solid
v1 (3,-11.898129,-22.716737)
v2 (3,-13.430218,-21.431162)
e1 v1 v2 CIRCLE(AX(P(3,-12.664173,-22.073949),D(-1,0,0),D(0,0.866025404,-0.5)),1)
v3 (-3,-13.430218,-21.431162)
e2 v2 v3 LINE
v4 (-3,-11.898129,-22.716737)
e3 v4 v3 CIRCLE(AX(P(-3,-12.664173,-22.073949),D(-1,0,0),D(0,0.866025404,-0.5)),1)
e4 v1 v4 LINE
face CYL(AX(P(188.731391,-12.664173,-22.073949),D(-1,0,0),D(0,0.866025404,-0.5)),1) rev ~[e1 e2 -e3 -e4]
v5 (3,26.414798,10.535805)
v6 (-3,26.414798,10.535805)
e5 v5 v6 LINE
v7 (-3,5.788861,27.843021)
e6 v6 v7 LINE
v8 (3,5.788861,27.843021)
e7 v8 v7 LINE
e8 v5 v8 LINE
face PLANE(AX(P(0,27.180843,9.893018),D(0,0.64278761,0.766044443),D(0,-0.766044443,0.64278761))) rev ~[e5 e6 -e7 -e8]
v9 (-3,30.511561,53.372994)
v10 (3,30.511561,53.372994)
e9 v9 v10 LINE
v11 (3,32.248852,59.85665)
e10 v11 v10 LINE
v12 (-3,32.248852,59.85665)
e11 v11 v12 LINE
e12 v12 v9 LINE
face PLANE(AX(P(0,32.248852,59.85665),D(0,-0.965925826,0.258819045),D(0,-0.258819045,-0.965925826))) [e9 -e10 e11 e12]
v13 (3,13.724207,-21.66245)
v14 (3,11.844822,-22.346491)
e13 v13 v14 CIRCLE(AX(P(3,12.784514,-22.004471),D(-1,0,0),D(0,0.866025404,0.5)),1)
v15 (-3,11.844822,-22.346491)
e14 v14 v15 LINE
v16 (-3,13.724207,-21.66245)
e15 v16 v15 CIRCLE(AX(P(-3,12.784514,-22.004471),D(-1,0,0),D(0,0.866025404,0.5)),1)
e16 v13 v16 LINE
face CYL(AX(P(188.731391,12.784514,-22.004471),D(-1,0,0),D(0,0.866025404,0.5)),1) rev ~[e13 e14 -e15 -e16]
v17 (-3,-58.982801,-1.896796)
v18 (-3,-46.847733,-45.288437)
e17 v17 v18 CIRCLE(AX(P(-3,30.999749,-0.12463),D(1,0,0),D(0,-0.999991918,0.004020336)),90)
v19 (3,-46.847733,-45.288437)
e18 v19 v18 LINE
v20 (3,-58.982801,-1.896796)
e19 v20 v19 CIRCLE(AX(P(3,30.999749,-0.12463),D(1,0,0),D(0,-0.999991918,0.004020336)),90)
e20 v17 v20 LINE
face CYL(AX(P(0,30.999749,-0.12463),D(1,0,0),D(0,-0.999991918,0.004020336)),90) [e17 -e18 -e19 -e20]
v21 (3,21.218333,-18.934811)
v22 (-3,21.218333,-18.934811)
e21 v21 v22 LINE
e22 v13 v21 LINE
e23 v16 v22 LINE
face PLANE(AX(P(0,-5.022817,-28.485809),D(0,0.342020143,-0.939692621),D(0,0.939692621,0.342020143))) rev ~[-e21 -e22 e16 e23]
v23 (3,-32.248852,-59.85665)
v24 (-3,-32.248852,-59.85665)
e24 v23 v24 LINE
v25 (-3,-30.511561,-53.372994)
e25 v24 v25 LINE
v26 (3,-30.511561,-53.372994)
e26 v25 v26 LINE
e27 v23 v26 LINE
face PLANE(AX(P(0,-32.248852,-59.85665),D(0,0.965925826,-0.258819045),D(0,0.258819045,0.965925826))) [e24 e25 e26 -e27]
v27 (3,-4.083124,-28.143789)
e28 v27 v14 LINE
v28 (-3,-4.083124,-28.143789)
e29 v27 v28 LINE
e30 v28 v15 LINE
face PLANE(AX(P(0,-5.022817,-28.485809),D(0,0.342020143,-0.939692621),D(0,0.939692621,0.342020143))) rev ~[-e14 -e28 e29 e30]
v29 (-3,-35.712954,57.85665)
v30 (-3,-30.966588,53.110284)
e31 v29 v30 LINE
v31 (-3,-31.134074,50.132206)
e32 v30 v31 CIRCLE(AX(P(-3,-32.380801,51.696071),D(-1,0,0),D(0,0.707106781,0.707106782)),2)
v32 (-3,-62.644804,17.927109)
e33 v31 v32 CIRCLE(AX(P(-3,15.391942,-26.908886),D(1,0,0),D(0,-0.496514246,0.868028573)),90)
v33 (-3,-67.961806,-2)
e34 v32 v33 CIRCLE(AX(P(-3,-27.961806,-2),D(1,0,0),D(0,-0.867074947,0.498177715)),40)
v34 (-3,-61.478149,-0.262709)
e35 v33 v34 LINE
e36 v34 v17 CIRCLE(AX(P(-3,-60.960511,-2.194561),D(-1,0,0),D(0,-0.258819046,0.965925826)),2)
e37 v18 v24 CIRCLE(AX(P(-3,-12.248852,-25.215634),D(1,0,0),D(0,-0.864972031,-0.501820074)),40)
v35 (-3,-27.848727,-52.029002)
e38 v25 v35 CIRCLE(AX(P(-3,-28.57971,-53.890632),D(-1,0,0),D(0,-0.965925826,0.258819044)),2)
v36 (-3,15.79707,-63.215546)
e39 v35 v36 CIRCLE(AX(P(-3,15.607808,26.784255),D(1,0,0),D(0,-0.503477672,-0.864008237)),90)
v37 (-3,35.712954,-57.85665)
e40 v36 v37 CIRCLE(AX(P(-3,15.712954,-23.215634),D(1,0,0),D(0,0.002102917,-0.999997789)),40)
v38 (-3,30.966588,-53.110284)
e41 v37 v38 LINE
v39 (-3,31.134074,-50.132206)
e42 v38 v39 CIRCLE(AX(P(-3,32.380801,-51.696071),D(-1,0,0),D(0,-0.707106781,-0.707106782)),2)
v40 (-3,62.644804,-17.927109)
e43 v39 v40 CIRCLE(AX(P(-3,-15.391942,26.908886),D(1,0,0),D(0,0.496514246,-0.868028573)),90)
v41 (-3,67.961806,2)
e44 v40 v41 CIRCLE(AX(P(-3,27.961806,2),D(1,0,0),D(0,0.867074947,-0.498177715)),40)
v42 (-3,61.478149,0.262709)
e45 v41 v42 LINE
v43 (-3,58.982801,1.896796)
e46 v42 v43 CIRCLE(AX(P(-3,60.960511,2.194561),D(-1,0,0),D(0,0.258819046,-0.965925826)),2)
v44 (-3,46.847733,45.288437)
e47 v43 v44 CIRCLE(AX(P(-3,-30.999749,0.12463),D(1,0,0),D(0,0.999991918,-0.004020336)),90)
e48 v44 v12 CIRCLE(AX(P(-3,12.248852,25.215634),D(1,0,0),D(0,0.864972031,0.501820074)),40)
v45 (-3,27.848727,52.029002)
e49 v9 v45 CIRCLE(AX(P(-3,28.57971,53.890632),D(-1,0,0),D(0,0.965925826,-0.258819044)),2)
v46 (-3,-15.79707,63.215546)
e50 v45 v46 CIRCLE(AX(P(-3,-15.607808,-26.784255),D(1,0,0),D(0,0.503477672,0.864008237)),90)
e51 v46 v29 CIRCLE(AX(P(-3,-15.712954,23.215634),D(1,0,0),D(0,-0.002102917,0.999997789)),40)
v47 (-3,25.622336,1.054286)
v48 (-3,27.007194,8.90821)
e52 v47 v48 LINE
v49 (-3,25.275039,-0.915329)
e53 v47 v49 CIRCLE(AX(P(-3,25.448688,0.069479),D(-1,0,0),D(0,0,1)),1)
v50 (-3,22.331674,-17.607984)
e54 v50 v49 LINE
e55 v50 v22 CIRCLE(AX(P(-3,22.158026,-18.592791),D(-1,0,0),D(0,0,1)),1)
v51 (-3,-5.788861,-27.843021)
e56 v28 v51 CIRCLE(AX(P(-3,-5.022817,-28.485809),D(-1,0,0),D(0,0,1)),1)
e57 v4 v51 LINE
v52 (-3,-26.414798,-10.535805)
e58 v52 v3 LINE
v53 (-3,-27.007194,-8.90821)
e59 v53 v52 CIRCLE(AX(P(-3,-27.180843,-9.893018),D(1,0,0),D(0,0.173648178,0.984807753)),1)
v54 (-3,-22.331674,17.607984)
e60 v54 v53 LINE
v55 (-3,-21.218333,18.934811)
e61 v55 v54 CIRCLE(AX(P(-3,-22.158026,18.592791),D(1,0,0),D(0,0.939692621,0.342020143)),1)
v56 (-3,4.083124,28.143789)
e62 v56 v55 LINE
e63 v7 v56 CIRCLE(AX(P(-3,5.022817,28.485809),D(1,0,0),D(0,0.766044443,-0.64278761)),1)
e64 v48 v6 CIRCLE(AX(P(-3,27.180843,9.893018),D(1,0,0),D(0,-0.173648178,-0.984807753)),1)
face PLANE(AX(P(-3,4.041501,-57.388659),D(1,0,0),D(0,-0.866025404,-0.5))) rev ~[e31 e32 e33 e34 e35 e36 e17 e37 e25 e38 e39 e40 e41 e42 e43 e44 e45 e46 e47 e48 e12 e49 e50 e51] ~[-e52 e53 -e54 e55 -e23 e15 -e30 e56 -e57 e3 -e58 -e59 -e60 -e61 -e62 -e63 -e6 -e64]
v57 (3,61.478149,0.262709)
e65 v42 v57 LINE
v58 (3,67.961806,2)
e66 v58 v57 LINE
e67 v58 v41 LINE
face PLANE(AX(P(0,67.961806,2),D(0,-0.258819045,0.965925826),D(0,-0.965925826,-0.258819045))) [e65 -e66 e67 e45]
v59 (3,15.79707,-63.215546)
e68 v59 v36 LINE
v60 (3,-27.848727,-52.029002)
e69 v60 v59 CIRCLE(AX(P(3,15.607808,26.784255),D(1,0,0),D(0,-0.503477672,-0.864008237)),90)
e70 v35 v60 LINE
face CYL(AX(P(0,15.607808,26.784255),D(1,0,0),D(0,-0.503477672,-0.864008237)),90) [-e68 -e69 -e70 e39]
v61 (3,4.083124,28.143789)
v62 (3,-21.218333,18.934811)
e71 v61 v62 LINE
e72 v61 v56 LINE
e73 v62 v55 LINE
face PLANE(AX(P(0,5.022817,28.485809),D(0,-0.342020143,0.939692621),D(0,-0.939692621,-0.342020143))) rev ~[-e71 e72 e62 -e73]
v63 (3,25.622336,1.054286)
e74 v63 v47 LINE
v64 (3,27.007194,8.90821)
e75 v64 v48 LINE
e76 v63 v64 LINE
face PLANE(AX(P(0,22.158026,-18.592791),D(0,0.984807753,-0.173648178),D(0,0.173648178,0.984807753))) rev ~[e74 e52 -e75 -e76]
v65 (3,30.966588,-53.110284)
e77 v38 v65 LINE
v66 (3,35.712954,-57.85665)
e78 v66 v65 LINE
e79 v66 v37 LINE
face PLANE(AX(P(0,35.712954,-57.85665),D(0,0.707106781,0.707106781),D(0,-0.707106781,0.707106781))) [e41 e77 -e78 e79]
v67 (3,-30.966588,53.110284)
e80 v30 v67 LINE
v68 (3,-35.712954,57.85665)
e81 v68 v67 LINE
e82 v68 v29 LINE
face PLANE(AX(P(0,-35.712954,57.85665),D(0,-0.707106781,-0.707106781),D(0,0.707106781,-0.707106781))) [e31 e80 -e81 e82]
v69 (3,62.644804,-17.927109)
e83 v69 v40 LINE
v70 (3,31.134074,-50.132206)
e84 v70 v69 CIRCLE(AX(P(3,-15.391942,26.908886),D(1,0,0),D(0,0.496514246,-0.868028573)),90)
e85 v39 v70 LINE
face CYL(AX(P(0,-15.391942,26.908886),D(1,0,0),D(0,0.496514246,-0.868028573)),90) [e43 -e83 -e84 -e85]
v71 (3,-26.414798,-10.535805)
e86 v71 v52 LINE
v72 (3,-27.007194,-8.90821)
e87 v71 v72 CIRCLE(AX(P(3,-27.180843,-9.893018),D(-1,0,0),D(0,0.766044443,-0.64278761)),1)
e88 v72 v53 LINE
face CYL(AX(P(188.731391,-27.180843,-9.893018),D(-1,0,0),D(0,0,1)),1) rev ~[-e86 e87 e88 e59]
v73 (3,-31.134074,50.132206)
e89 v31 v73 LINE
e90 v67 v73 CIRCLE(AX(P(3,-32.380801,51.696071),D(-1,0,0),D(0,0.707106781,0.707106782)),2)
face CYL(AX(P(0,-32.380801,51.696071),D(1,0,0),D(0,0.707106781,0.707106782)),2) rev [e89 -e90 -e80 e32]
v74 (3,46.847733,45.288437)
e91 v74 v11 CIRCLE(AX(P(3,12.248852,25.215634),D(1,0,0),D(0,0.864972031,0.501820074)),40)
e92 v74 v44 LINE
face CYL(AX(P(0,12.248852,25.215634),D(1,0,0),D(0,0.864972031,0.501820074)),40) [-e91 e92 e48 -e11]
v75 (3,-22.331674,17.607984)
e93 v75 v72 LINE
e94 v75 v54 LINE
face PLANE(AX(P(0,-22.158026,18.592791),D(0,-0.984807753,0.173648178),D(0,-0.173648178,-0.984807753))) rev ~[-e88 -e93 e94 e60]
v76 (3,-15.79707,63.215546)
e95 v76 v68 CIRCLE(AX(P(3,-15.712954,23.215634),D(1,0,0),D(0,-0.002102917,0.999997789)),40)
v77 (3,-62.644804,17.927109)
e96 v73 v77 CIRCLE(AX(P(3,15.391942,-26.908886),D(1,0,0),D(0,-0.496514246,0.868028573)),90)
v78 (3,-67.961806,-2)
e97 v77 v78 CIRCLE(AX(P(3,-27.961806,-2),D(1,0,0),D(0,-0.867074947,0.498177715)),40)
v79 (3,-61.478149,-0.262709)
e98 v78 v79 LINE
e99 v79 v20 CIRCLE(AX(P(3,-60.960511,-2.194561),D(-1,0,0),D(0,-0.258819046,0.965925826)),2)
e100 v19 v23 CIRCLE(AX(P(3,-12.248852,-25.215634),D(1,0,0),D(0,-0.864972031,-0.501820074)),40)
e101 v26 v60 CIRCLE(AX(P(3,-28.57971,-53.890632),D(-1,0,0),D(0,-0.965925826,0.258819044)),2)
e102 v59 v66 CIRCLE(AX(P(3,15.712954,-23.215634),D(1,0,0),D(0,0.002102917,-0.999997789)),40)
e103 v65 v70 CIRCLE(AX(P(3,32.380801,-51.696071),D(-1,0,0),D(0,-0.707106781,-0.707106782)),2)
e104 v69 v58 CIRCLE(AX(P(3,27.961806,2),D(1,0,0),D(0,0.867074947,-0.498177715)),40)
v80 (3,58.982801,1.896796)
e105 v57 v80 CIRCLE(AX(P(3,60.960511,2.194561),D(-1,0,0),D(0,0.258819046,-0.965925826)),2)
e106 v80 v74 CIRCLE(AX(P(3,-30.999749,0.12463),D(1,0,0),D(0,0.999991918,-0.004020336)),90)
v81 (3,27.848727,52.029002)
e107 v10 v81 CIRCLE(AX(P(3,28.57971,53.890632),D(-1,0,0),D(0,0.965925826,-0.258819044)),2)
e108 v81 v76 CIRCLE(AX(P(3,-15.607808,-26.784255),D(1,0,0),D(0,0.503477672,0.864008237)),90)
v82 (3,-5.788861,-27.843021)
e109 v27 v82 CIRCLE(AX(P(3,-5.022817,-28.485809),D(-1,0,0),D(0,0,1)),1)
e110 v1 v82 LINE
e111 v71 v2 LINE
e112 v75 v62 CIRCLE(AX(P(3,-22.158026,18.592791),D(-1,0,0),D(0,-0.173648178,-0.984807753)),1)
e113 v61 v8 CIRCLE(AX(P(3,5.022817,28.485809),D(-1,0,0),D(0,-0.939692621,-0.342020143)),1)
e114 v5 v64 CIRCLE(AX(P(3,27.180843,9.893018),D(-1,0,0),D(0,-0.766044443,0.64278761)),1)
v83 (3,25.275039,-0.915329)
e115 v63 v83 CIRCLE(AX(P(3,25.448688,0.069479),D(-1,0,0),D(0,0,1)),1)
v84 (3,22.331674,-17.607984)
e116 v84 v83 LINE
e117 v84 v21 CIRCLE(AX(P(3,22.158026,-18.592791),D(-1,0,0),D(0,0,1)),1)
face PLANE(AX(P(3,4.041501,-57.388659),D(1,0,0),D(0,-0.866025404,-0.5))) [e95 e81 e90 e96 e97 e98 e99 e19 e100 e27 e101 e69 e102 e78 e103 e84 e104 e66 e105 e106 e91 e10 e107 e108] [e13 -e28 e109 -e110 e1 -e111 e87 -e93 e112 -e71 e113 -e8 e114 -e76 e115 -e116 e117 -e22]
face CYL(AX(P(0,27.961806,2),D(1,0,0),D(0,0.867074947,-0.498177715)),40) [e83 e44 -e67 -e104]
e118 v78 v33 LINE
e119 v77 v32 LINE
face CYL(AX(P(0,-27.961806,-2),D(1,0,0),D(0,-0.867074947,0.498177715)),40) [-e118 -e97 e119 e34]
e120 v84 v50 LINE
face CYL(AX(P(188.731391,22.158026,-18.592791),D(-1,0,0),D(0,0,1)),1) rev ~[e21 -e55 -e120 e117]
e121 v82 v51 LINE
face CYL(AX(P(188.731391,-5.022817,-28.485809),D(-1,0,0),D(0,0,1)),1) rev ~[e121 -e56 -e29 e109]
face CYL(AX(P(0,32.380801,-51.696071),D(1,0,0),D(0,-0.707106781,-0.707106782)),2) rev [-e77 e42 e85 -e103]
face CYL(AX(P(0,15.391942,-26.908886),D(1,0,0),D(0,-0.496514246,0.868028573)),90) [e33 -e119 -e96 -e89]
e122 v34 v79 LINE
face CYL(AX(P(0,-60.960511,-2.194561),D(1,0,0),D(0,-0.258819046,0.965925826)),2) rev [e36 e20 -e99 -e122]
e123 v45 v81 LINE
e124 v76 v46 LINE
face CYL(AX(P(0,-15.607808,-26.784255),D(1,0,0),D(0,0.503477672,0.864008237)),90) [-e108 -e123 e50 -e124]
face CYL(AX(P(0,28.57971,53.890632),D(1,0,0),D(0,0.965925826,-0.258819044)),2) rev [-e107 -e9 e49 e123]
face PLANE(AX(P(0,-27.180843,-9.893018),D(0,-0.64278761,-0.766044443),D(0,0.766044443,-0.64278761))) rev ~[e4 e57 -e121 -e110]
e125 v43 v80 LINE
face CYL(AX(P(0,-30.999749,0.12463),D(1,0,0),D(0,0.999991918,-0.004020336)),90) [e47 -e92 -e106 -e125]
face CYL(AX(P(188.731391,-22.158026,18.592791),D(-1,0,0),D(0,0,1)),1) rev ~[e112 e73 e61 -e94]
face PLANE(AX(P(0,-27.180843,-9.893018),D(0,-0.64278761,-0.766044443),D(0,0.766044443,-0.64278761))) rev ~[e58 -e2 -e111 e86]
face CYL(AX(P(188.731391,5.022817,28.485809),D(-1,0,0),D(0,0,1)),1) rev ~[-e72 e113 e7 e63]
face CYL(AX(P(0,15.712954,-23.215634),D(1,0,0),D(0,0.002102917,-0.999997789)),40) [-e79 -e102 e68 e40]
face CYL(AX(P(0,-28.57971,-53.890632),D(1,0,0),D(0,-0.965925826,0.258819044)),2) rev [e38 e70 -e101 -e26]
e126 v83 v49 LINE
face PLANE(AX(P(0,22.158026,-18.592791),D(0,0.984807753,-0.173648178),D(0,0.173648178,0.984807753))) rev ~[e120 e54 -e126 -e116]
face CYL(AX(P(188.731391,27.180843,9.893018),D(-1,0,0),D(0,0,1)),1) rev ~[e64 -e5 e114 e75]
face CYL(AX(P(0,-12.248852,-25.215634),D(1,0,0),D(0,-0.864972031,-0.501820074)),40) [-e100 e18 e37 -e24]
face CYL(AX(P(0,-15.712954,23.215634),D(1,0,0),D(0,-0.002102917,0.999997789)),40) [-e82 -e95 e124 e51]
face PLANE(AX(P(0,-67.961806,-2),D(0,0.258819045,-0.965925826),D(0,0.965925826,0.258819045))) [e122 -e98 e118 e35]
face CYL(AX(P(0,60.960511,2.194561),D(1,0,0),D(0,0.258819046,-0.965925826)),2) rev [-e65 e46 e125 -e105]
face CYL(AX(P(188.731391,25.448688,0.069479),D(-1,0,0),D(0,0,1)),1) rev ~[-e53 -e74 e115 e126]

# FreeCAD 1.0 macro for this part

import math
import FreeCAD as App
import Part
import Sketcher
from FreeCAD import Vector
Q = App.Units.Quantity


def add_polygon(sketch, points):
    """Adds a closed chain of lines whose ends are joined by coincident constraints."""
    first, n = sketch.GeometryCount, len(points)
    for a, b in zip(points, points[1:] + points[:1]):
        sketch.addGeometry(Part.LineSegment(App.Vector(*a, 0), App.Vector(*b, 0)), False)
    for i in range(n):
        sketch.addConstraint(Sketcher.Constraint("Coincident", first + i, 2, first + (i + 1) % n, 1))

doc = App.newDocument("Part")
body = doc.addObject("PartDesign::Body", "Body")

sketch1 = doc.addObject("Sketcher::SketchObject", "Sketch")
body.addObject(sketch1)
sketch1.AttachmentSupport = (doc.YZ_Plane, [""])
sketch1.MapMode = "FlatFace"
sketch1.addGeometry(Part.Circle(Vector(0, 0, 0), Vector(0, 0, 1), 59), False)
add_polygon(sketch1, [(27, 10), (22, -19), (-5, -28), (-27, -10), (-22, 19), (5, 28)])
sketch1.addConstraint(Sketcher.Constraint("Coincident", 0, 3, -1, 1))
sketch1.addConstraint(Sketcher.Constraint("Symmetric", 1, 2, 4, 2, -1, 1))
sketch1.addConstraint(Sketcher.Constraint("Symmetric", 2, 2, 5, 2, -1, 1))
sketch1.addConstraint(Sketcher.Constraint("Symmetric", 3, 2, 6, 2, -1, 1))
sketch1.addConstraint(Sketcher.Constraint("Equal", 1, 2))
sketch1.addConstraint(Sketcher.Constraint("Equal", 2, 3))
sketch1.addConstraint(Sketcher.Constraint("Diameter", 0, 118.0))
sketch1.addConstraint(Sketcher.Constraint("Angle", 1, Q("-100 deg")))
sketch1.addConstraint(Sketcher.Constraint("Angle", 2, Q("-160 deg")))
sketch1.addConstraint(Sketcher.Constraint("Angle", 3, Q("140 deg")))
sketch1.addConstraint(Sketcher.Constraint("DistanceY", 2, 2, 4, 2, 47.0786))
pad1 = doc.addObject("PartDesign::Pad", "Pad")
body.addObject(pad1)
pad1.Profile = sketch1
pad1.Length = 6
pad1.Midplane = True

sketch2 = doc.addObject("Sketcher::SketchObject", "Sketch001")
body.addObject(sketch2)
sketch2.AttachmentSupport = (doc.YZ_Plane, [""])
sketch2.MapMode = "FlatFace"
sketch2.addGeometry(Part.LineSegment(Vector(68, 2, 0), Vector(61.5, 0.3, 0)), False)
sketch2.addGeometry(Part.ArcOfCircle(Part.Circle(Vector(61, 2.2, 0), Vector(0, 0, 1), 2), math.radians(-178), math.radians(-75)), False)
sketch2.addGeometry(Part.ArcOfCircle(Part.Circle(Vector(0, 0, 0), Vector(0, 0, 1), 59), math.radians(-60), math.radians(2)), False)
sketch2.addGeometry(Part.ArcOfCircle(Part.Circle(Vector(-15.4, 26.9, 0), Vector(0, 0, 1), 90), math.radians(-60), math.radians(-30)), False)
sketch2.addGeometry(Part.ArcOfCircle(Part.Circle(Vector(28, 2, 0), Vector(0, 0, 1), 40), math.radians(-30), math.radians(0)), False)
sketch2.addConstraint(Sketcher.Constraint("Tangent", 0, 2, 1, 2))
sketch2.addConstraint(Sketcher.Constraint("Tangent", 1, 1, 2, 2))
sketch2.addConstraint(Sketcher.Constraint("Tangent", 2, 1, 3, 1))
sketch2.addConstraint(Sketcher.Constraint("Tangent", 3, 2, 4, 1))
sketch2.addConstraint(Sketcher.Constraint("Coincident", 4, 2, 0, 1))
sketch2.addConstraint(Sketcher.Constraint("Coincident", 2, 3, -1, 1))
sketch2.addConstraint(Sketcher.Constraint("Radius", 1, 2.0))
sketch2.addConstraint(Sketcher.Constraint("Radius", 2, 59.0))
sketch2.addConstraint(Sketcher.Constraint("Radius", 3, 90.0))
sketch2.addConstraint(Sketcher.Constraint("Radius", 4, 40.0))
sketch2.addConstraint(Sketcher.Constraint("Angle", 0, Q("-165 deg")))
sketch2.addConstraint(Sketcher.Constraint("DistanceY", -1, 1, 4, 3, 2.0))
sketch2.addConstraint(Sketcher.Constraint("DistanceY", -1, 1, 4, 2, 2.0))
sketch2.addConstraint(Sketcher.Constraint("DistanceX", 4, 3, 1, 1, 31.0))
pad2 = doc.addObject("PartDesign::Pad", "Pad001")
body.addObject(pad2)
pad2.Profile = sketch2
pad2.Length = 6
pad2.Midplane = True
doc.recompute()

polarpattern = doc.addObject("PartDesign::PolarPattern", "PolarPattern")
body.addObject(polarpattern)
polarpattern.Originals = [pad2]
polarpattern.Axis = (doc.X_Axis, [""])
polarpattern.Angle = 360
polarpattern.Occurrences = 6
body.Tip = polarpattern

sketch3 = doc.addObject("Sketcher::SketchObject", "Sketch002")
body.addObject(sketch3)
sketch3.AttachmentSupport = (doc.YZ_Plane, [""])
sketch3.MapMode = "FlatFace"
sketch3.AttachmentOffset = App.Placement(Vector(0, 0, 3), App.Rotation())
sketch3.addGeometry(Part.Circle(Vector(27.2, 9.9, 0), Vector(0, 0, 1), 1), False)
sketch3.addGeometry(Part.Circle(Vector(22.2, -18.6, 0), Vector(0, 0, 1), 1), False)
sketch3.addGeometry(Part.Circle(Vector(-5, -28.5, 0), Vector(0, 0, 1), 1), False)
sketch3.addGeometry(Part.Circle(Vector(-27.2, -9.9, 0), Vector(0, 0, 1), 1), False)
sketch3.addGeometry(Part.Circle(Vector(-22.2, 18.6, 0), Vector(0, 0, 1), 1), False)
sketch3.addGeometry(Part.Circle(Vector(5, 28.5, 0), Vector(0, 0, 1), 1), False)
sketch3.addConstraint(Sketcher.Constraint("Equal", 0, 1))
sketch3.addConstraint(Sketcher.Constraint("Equal", 1, 2))
sketch3.addConstraint(Sketcher.Constraint("Equal", 2, 3))
sketch3.addConstraint(Sketcher.Constraint("Equal", 3, 4))
sketch3.addConstraint(Sketcher.Constraint("Equal", 4, 5))
sketch3.addConstraint(Sketcher.Constraint("Symmetric", 0, 3, 3, 3, -1, 1))
sketch3.addConstraint(Sketcher.Constraint("Symmetric", 1, 3, 4, 3, -1, 1))
sketch3.addConstraint(Sketcher.Constraint("Symmetric", 2, 3, 5, 3, -1, 1))
sketch3.addConstraint(Sketcher.Constraint("Diameter", 0, 2.0))
sketch3.addConstraint(Sketcher.Constraint("DistanceY", 2, 3, 4, 3, 47.0786))
sketch3.addConstraint(Sketcher.Constraint("DistanceY", 1, 3, -1, 1, 18.592791))
sketch3.addConstraint(Sketcher.Constraint("DistanceY", 1, 3, 0, 3, 28.485809))
sketch3.addConstraint(Sketcher.Constraint("DistanceX", 2, 3, 0, 3, 32.203659))
sketch3.addConstraint(Sketcher.Constraint("DistanceX", 3, 3, 1, 3, 49.338868))
sketch3.addConstraint(Sketcher.Constraint("DistanceX", 4, 3, 1, 3, 44.316052))
doc.recompute()
hole = doc.addObject("PartDesign::Hole", "Hole")
body.addObject(hole)
hole.Profile = sketch3
hole.ThreadType = "None"
hole.Diameter = 2
hole.DepthType = "ThroughAll"

sketch4 = doc.addObject("Sketcher::SketchObject", "Sketch003")
body.addObject(sketch4)
sketch4.AttachmentSupport = (doc.YZ_Plane, [""])
sketch4.MapMode = "FlatFace"
sketch4.AttachmentOffset = App.Placement(Vector(0, 0, 3), App.Rotation())
sketch4.addGeometry(Part.Circle(Vector(25.4, 0.1, 0), Vector(0, 0, 1), 1), False)
sketch4.addConstraint(Sketcher.Constraint("Diameter", 0, 2.0))
sketch4.addConstraint(Sketcher.Constraint("DistanceY", -1, 1, 0, 3, 0.069479))
sketch4.addConstraint(Sketcher.Constraint("DistanceX", -1, 1, 0, 3, 25.448688))
doc.recompute()
hole2 = doc.addObject("PartDesign::Hole", "Hole001")
body.addObject(hole2)
hole2.Profile = sketch4
hole2.ThreadType = "None"
hole2.Diameter = 2
hole2.DepthType = "ThroughAll"
doc.recompute()

polarpattern2 = doc.addObject("PartDesign::PolarPattern", "PolarPattern001")
body.addObject(polarpattern2)
polarpattern2.Originals = [hole2]
polarpattern2.Axis = (doc.X_Axis, [""])
polarpattern2.Angle = 120
polarpattern2.Occurrences = 3
polarpattern2.Reversed = True
body.Tip = polarpattern2

doc.recompute()
